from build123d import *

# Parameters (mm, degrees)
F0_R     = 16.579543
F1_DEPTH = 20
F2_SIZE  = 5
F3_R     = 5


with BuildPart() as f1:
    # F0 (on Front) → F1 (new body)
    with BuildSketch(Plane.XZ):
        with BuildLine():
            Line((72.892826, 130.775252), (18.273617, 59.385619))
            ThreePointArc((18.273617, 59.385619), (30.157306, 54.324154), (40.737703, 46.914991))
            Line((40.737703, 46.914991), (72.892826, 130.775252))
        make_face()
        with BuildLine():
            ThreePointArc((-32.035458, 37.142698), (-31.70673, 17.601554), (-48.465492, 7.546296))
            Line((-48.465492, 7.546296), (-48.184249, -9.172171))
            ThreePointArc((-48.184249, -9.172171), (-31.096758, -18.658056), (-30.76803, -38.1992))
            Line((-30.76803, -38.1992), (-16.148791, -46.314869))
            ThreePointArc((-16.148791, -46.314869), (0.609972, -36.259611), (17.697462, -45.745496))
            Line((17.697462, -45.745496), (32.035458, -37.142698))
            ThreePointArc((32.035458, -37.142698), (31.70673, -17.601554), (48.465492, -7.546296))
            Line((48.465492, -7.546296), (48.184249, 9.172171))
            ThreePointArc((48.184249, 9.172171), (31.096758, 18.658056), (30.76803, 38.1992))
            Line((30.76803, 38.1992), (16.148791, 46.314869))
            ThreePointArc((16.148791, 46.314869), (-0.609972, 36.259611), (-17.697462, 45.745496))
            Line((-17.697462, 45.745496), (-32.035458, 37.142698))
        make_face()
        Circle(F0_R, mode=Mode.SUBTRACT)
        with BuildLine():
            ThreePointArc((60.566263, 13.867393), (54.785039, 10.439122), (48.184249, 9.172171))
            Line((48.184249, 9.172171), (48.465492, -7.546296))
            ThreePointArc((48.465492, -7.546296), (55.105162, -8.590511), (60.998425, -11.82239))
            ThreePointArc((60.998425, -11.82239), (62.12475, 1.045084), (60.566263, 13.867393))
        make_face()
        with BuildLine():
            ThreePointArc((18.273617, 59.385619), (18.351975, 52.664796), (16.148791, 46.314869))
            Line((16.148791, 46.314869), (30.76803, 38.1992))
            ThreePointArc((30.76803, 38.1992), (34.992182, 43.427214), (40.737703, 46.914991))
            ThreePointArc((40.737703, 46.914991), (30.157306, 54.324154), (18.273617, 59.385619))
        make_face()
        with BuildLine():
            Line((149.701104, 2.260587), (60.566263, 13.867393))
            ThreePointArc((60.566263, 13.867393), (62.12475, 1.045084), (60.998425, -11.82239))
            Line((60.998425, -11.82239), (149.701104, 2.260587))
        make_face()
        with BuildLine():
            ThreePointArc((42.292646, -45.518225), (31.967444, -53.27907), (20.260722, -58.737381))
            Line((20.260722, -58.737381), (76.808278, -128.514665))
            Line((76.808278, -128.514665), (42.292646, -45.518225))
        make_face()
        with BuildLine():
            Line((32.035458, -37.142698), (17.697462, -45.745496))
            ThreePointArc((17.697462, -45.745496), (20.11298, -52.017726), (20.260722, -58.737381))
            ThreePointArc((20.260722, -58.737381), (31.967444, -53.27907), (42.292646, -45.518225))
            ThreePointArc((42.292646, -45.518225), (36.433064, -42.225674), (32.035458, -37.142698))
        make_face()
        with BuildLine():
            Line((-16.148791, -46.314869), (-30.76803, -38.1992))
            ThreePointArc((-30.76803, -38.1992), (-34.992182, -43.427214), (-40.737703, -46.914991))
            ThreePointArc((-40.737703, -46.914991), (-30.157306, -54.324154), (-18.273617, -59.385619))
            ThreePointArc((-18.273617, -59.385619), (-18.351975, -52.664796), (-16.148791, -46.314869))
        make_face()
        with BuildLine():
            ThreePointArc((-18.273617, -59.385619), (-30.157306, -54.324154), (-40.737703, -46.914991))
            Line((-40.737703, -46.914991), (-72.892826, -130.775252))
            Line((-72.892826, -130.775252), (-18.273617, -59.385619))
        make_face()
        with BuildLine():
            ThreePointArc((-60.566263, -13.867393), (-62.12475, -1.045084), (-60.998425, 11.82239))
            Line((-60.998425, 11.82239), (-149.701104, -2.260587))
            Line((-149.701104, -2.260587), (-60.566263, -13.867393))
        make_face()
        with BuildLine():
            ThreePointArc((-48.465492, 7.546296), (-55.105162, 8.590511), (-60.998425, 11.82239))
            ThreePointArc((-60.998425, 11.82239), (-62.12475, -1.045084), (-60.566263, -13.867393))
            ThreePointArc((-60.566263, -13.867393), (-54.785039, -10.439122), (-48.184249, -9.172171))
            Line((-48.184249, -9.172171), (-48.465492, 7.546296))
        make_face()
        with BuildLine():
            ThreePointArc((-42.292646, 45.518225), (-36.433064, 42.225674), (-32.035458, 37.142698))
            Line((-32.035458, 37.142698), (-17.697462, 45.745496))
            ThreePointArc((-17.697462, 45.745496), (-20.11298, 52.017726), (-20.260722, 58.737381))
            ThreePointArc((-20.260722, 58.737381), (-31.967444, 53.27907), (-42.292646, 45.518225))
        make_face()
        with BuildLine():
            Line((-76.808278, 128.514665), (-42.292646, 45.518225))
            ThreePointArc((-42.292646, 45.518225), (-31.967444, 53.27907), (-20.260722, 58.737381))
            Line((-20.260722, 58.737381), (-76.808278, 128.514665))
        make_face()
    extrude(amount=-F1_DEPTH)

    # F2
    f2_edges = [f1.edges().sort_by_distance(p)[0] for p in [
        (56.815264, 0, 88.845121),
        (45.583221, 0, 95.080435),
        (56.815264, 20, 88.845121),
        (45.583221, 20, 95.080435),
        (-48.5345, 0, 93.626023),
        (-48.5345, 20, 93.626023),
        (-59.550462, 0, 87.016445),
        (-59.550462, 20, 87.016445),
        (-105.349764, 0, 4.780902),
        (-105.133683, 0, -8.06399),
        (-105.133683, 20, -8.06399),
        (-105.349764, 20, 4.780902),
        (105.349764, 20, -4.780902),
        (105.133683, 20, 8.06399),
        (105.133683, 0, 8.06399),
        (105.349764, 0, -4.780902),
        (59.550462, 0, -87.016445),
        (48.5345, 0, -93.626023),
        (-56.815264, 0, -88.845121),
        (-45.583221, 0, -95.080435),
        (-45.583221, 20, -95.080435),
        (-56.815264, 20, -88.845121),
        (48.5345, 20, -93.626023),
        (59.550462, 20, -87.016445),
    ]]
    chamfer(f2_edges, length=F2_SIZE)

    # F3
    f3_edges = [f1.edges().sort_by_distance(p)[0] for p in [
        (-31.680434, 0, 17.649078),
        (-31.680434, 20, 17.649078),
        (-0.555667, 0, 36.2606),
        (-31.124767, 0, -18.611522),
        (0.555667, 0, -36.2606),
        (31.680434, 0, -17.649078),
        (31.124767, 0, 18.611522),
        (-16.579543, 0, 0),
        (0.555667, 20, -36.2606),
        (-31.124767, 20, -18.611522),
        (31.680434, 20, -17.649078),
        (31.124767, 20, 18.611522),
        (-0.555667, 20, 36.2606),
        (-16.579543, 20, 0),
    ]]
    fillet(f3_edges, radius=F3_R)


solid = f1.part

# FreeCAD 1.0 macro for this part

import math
import FreeCAD as App
import Part
import Sketcher

V = App.Vector


def edges_at(feature, points):
    """Names of the edges that pass closest to the given points."""
    edges = feature.Shape.Edges
    near = lambda p: min(range(len(edges)), key=lambda i: edges[i].distToShape(Part.Vertex(*p))[0])
    return sorted({f"Edge{near(p) + 1}" for p in points})

doc = App.newDocument("Part")
body = doc.addObject("PartDesign::Body", "Body")

# Sketch on XZ plane
sketch1 = body.newObject("Sketcher::SketchObject", "Sketch")
sketch1.AttachmentSupport = (doc.getObject("XZ_Plane"), [""])
sketch1.MapMode = "FlatFace"
sketch1.addGeometry([
    Part.LineSegment(V(73, 131, 0), V(18, 59, 0)),  # 0
    Part.ArcOfCircle(Part.Circle(V(-1, 56, 0), V(0, 0, 1), 20), math.radians(-29), math.radians(11)),  # 1
    Part.ArcOfCircle(Part.Circle(V(-1, 56, 0), V(0, 0, 1), 20), math.radians(-149), math.radians(-29)),  # 2
    Part.ArcOfCircle(Part.Circle(V(-1, 56, 0), V(0, 0, 1), 20), math.radians(171), math.radians(211)),  # 3
    Part.LineSegment(V(-20, 59, 0), V(-77, 129, 0)),  # 4
    Part.LineSegment(V(-77, 129, 0), V(-42, 46, 0)),  # 5
    Part.ArcOfCircle(Part.Circle(V(-49, 27, 0), V(0, 0, 1), 20), math.radians(31), math.radians(71)),  # 6
    Part.ArcOfCircle(Part.Circle(V(-49, 27, 0), V(0, 0, 1), 20), math.radians(-89), math.radians(31)),  # 7
    Part.ArcOfCircle(Part.Circle(V(-49, 27, 0), V(0, 0, 1), 20), math.radians(-129), math.radians(-89)),  # 8
    Part.LineSegment(V(-61, 12, 0), V(-150, -2, 0)),  # 9
    Part.LineSegment(V(-150, -2, 0), V(-61, -14, 0)),  # 10
    Part.ArcOfCircle(Part.Circle(V(-48, -29, 0), V(0, 0, 1), 20), math.radians(91), math.radians(131)),  # 11
    Part.ArcOfCircle(Part.Circle(V(-48, -29, 0), V(0, 0, 1), 20), math.radians(-29), math.radians(91)),  # 12
    Part.ArcOfCircle(Part.Circle(V(-48, -29, 0), V(0, 0, 1), 20), math.radians(-69), math.radians(-29)),  # 13
    Part.LineSegment(V(-41, -47, 0), V(-73, -131, 0)),  # 14
    Part.LineSegment(V(-73, -131, 0), V(-18, -59, 0)),  # 15
    Part.ArcOfCircle(Part.Circle(V(1, -56, 0), V(0, 0, 1), 20), math.radians(151), math.radians(191)),  # 16
    Part.ArcOfCircle(Part.Circle(V(1, -56, 0), V(0, 0, 1), 20), math.radians(31), math.radians(151)),  # 17
    Part.ArcOfCircle(Part.Circle(V(1, -56, 0), V(0, 0, 1), 20), math.radians(-9), math.radians(31)),  # 18
    Part.LineSegment(V(20, -59, 0), V(77, -129, 0)),  # 19
    Part.LineSegment(V(77, -129, 0), V(42, -46, 0)),  # 20
    Part.ArcOfCircle(Part.Circle(V(49, -27, 0), V(0, 0, 1), 20), math.radians(-149), math.radians(-109)),  # 21
    Part.ArcOfCircle(Part.Circle(V(49, -27, 0), V(0, 0, 1), 20), math.radians(91), math.radians(211)),  # 22
    Part.ArcOfCircle(Part.Circle(V(49, -27, 0), V(0, 0, 1), 20), math.radians(51), math.radians(91)),  # 23
    Part.LineSegment(V(61, -12, 0), V(150, 2, 0)),  # 24
    Part.LineSegment(V(150, 2, 0), V(61, 14, 0)),  # 25
    Part.ArcOfCircle(Part.Circle(V(48, 29, 0), V(0, 0, 1), 20), math.radians(-89), math.radians(-49)),  # 26
    Part.ArcOfCircle(Part.Circle(V(48, 29, 0), V(0, 0, 1), 20), math.radians(151), math.radians(271)),  # 27
    Part.ArcOfCircle(Part.Circle(V(48, 29, 0), V(0, 0, 1), 20), math.radians(111), math.radians(151)),  # 28
    Part.LineSegment(V(41, 47, 0), V(73, 131, 0)),  # 29
    Part.Circle(V(0, 0, 0), V(0, 0, 1), 17),  # 30
], False)
sketch1.addConstraint([
    Sketcher.Constraint("Coincident", 0, 2, 1, 2),
    Sketcher.Constraint("Tangent", 1, 1, 2, 2),
    Sketcher.Constraint("Tangent", 2, 1, 3, 2),
    Sketcher.Constraint("Coincident", 3, 1, 4, 1),
    Sketcher.Constraint("Coincident", 4, 2, 5, 1),
    Sketcher.Constraint("Coincident", 5, 2, 6, 2),
    Sketcher.Constraint("Tangent", 6, 1, 7, 2),
    Sketcher.Constraint("Tangent", 7, 1, 8, 2),
    Sketcher.Constraint("Coincident", 8, 1, 9, 1),
    Sketcher.Constraint("Coincident", 9, 2, 10, 1),
    Sketcher.Constraint("Coincident", 10, 2, 11, 2),
    Sketcher.Constraint("Tangent", 11, 1, 12, 2),
    Sketcher.Constraint("Tangent", 12, 1, 13, 2),
    Sketcher.Constraint("Coincident", 13, 1, 14, 1),
    Sketcher.Constraint("Coincident", 14, 2, 15, 1),
    Sketcher.Constraint("Coincident", 15, 2, 16, 2),
    Sketcher.Constraint("Tangent", 16, 1, 17, 2),
    Sketcher.Constraint("Tangent", 17, 1, 18, 2),
    Sketcher.Constraint("Coincident", 18, 1, 19, 1),
    Sketcher.Constraint("Coincident", 19, 2, 20, 1),
    Sketcher.Constraint("Coincident", 20, 2, 21, 2),
    Sketcher.Constraint("Tangent", 21, 1, 22, 2),
    Sketcher.Constraint("Tangent", 22, 1, 23, 2),
    Sketcher.Constraint("Coincident", 23, 1, 24, 1),
    Sketcher.Constraint("Coincident", 24, 2, 25, 1),
    Sketcher.Constraint("Coincident", 25, 2, 26, 2),
    Sketcher.Constraint("Tangent", 26, 1, 27, 2),
    Sketcher.Constraint("Tangent", 27, 1, 28, 2),
    Sketcher.Constraint("Coincident", 28, 1, 29, 1),
    Sketcher.Constraint("Coincident", 29, 2, 0, 1),
    Sketcher.Constraint("Coincident", 30, 3, -1, 1),
    Sketcher.Constraint("Coincident", 3, 3, 1, 3),
    Sketcher.Constraint("Coincident", 8, 3, 6, 3),
    Sketcher.Constraint("Coincident", 18, 3, 16, 3),
    Sketcher.Constraint("Coincident", 23, 3, 21, 3),
    Sketcher.Constraint("Equal", 3, 6),
    Sketcher.Constraint("Equal", 8, 12),
    Sketcher.Constraint("Equal", 12, 16),
    Sketcher.Constraint("Equal", 18, 21),
    Sketcher.Constraint("Equal", 11, 26),
    Sketcher.Constraint("Equal", 23, 27),
    Sketcher.Constraint("Equal", 13, 28),
    Sketcher.Constraint("Symmetric", 1, 3, 16, 3, -1, 1),
    Sketcher.Constraint("Symmetric", 6, 3, 21, 3, -1, 1),
    Sketcher.Constraint("Symmetric", 11, 3, 26, 3, -1, 1),
    Sketcher.Constraint("Symmetric", 4, 2, 19, 2, -1, 1),
    Sketcher.Constraint("Symmetric", 9, 2, 24, 2, -1, 1),
    Sketcher.Constraint("Symmetric", 14, 2, 29, 2, -1, 1),
    Sketcher.Constraint("Parallel", 0, 15),
    Sketcher.Constraint("Parallel", 4, 19),
    Sketcher.Constraint("Parallel", 5, 20),
    Sketcher.Constraint("Parallel", 9, 24),
    Sketcher.Constraint("Parallel", 10, 25),
    Sketcher.Constraint("Parallel", 14, 29),
    Sketcher.Constraint("Equal", 0, 5),
    Sketcher.Constraint("Equal", 4, 9),
    Sketcher.Constraint("Equal", 5, 10),
    Sketcher.Constraint("Equal", 9, 14),
    Sketcher.Constraint("Radius", 2, 19.543908),
    Sketcher.Constraint("Diameter", 30, 33.159086),
    Sketcher.Constraint("Radius", 11, 19.543916),
    Sketcher.Constraint("Radius", 13, 19.543924),
    Sketcher.Constraint("DistanceX", 1, 3, -1, 1, 0.938699),
    Sketcher.Constraint("DistanceY", 13, 3, -1, 1, 28.713302),
    Sketcher.Constraint("DistanceY", 12, 1, -1, 1, 38.1992),
    Sketcher.Constraint("DistanceY", -1, 1, 27, 1, 38.1992),
    Sketcher.Constraint("DistanceX", 8, 3, 11, 3, 0.938702),
    Sketcher.Constraint("DistanceX", 0, 2, 26, 3, 29.581901),
    Sketcher.Constraint("DistanceY", 6, 1, 2, 1, 8.602798),
    Sketcher.Constraint("DistanceY", 17, 1, 21, 1, 8.602798),
    Sketcher.Constraint("Distance", 0, 89.887361),
    Sketcher.Constraint("Distance", 4, 89.813671),
    Sketcher.Constraint("DistanceX", 6, 3, -1, 1, 48.79422),
    Sketcher.Constraint("DistanceY", -1, 1, 6, 3, 27.087439),
    Sketcher.Constraint("DistanceY", -1, 1, 0, 2, 59.385619),
    Sketcher.Constraint("DistanceX", -1, 1, 1, 1, 16.148791),
    Sketcher.Constraint("DistanceX", 2, 1, -1, 1, 17.697462),
    Sketcher.Constraint("DistanceX", 3, 1, -1, 1, 20.260722),
    Sketcher.Constraint("DistanceX", 4, 2, -1, 1, 76.808278),
    Sketcher.Constraint("DistanceX", 7, 1, -1, 1, 48.465492),
    Sketcher.Constraint("DistanceY", -1, 1, 8, 1, 11.82239),
    Sketcher.Constraint("DistanceX", 11, 1, -1, 1, 48.184249),
    Sketcher.Constraint("DistanceY", 13, 1, -1, 1, 46.914991),
    Sketcher.Constraint("DistanceX", 16, 1, -1, 1, 16.148791),
    Sketcher.Constraint("DistanceX", -1, 1, 17, 1, 17.697462),
    Sketcher.Constraint("DistanceX", -1, 1, 22, 1, 48.465492),
    Sketcher.Constraint("DistanceX", -1, 1, 26, 1, 48.184249),
    Sketcher.Constraint("DistanceX", 9, 2, 8, 1, 88.702679),
])
pad1 = body.newObject("PartDesign::Pad", "Pad")
pad1.Profile = sketch1
pad1.Length = 20
pad1.Reversed = True
doc.recompute()

chamfer = body.newObject("PartDesign::Chamfer", "Chamfer")
chamfer.Base = (pad1, edges_at(pad1, [
    (56.815, 0, 88.845),
    (45.583, 0, 95.08),
    (56.815, 20, 88.845),
    (45.583, 20, 95.08),
    (-48.535, 0, 93.626),
    (-48.535, 20, 93.626),
    (-59.55, 0, 87.016),
    (-59.55, 20, 87.016),
    (-105.35, 0, 4.781),
    (-105.134, 0, -8.064),
    (-105.134, 20, -8.064),
    (-105.35, 20, 4.781),
    (105.35, 20, -4.781),
    (105.134, 20, 8.064),
    (105.134, 0, 8.064),
    (105.35, 0, -4.781),
    (59.55, 0, -87.016),
    (48.535, 0, -93.626),
    (-56.815, 0, -88.845),
    (-45.583, 0, -95.08),
    (-45.583, 20, -95.08),
    (-56.815, 20, -88.845),
    (48.535, 20, -93.626),
    (59.55, 20, -87.016),
]))
chamfer.Size = 5
doc.recompute()

fillet = body.newObject("PartDesign::Fillet", "Fillet")
fillet.Base = (chamfer, edges_at(chamfer, [
    (-31.707, 0, 17.602),
    (-31.707, 20, 17.602),
    (-0.61, 0, 36.26),
    (-31.097, 0, -18.658),
    (0.61, 0, -36.26),
    (31.707, 0, -17.602),
    (31.097, 0, 18.658),
    (-16.58, 0, 0),
    (0.61, 20, -36.26),
    (-31.097, 20, -18.658),
    (31.707, 20, -17.602),
    (31.097, 20, 18.658),
    (-0.61, 20, 36.26),
    (-16.58, 20, 0),
]))
fillet.Radius = 5

doc.recompute()
